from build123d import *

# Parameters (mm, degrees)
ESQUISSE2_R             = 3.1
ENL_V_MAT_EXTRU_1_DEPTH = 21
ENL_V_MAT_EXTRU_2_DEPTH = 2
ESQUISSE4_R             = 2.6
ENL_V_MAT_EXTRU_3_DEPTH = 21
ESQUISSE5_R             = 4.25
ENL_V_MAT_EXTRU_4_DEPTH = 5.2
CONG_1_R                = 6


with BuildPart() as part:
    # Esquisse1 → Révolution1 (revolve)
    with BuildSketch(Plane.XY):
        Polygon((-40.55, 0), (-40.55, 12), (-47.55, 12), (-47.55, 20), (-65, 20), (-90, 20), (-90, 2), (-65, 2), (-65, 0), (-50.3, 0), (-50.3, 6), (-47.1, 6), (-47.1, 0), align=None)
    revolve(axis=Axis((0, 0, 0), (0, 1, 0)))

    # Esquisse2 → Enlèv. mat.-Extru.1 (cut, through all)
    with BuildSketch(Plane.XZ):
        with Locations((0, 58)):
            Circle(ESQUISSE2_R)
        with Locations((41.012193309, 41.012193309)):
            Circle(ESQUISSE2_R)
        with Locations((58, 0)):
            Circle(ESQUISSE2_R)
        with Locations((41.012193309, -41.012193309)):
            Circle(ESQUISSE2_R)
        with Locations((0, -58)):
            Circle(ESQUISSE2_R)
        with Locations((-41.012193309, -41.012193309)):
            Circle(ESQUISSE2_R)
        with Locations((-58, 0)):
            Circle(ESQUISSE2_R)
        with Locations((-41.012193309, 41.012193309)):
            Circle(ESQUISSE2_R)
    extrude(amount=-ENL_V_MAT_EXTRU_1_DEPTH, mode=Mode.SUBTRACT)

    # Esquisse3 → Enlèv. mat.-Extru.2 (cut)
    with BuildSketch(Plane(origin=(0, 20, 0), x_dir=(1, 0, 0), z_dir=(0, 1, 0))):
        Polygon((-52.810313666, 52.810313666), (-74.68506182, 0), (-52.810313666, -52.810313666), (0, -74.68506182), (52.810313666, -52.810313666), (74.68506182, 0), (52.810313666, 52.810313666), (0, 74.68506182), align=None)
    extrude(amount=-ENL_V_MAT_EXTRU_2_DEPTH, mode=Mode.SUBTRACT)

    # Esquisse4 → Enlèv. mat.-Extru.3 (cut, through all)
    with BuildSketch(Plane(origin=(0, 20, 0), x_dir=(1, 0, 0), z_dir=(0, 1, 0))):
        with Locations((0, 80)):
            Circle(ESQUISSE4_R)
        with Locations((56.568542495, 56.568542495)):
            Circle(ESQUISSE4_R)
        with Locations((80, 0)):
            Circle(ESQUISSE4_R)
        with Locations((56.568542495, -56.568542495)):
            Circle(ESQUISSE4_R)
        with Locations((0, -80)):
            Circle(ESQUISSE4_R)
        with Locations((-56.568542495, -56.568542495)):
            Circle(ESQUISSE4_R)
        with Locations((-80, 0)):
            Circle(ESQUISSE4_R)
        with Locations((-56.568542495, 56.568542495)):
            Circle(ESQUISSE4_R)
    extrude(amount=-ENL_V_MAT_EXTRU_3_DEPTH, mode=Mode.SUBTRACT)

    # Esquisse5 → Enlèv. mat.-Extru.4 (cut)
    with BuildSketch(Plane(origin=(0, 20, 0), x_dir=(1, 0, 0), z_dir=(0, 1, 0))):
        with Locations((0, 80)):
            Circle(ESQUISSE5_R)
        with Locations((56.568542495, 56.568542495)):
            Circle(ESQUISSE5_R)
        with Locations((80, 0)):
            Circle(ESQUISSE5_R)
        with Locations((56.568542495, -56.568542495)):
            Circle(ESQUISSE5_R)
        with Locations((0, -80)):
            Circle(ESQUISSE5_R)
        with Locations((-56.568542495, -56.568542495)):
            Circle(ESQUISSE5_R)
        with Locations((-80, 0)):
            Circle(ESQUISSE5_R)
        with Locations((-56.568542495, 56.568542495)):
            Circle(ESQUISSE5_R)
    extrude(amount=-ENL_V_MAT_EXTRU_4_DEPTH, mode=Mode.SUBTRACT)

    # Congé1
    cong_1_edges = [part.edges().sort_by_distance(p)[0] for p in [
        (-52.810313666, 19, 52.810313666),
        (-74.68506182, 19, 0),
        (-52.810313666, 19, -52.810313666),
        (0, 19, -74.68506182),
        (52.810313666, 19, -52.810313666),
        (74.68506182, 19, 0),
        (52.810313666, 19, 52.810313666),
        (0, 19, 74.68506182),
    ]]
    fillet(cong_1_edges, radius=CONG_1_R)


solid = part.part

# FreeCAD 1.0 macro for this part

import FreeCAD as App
import Part
import Sketcher
Q = App.Units.Quantity


def edges_at(feature, points):
    """Names of the edges that pass closest to the given points."""
    edges = feature.Shape.Edges
    near = lambda p: min(range(len(edges)), key=lambda i: edges[i].distToShape(Part.Vertex(*p))[0])
    return sorted({f"Edge{near(p) + 1}" for p in points})


def add_polygon(sketch, points):
    """Adds a closed chain of lines whose ends are joined by coincident constraints."""
    first, n = sketch.GeometryCount, len(points)
    for a, b in zip(points, points[1:] + points[:1]):
        sketch.addGeometry(Part.LineSegment(App.Vector(*a, 0), App.Vector(*b, 0)), False)
    for i in range(n):
        sketch.addConstraint(Sketcher.Constraint("Coincident", first + i, 2, first + (i + 1) % n, 1))

doc = App.newDocument("Part")
body = doc.addObject("PartDesign::Body", "Body")

sketch1 = doc.addObject("Sketcher::SketchObject", "Sketch")
body.addObject(sketch1)
sketch1.AttachmentSupport = (doc.XY_Plane, [""])
sketch1.MapMode = "FlatFace"
add_polygon(sketch1, [(-40.5, 0), (-40.5, 12), (-47.5, 12), (-47.5, 20), (-90, 20), (-90, 2), (-65, 2), (-65, 0), (-50.3, 0), (-50.3, 6), (-47.1, 6), (-47.1, 0)])
sketch1.addConstraint([
    Sketcher.Constraint("Vertical", 0),
    Sketcher.Constraint("Horizontal", 1),
    Sketcher.Constraint("Vertical", 2),
    Sketcher.Constraint("Horizontal", 3),
    Sketcher.Constraint("Vertical", 4),
    Sketcher.Constraint("Horizontal", 5),
    Sketcher.Constraint("Vertical", 6),
    Sketcher.Constraint("Horizontal", 7),
    Sketcher.Constraint("Vertical", 8),
    Sketcher.Constraint("Horizontal", 9),
    Sketcher.Constraint("Vertical", 10),
    Sketcher.Constraint("Horizontal", 11),
    Sketcher.Constraint("PointOnObject", 6, 2, -1),
    Sketcher.Constraint("PointOnObject", 10, 2, -1),
    Sketcher.Constraint("DistanceX", 1, 2, 1, 1, Q("7 mm")),
    Sketcher.Constraint("DistanceX", 5, 1, 5, 2, Q("25 mm")),
    Sketcher.Constraint("DistanceY", 0, 1, 0, 2, Q("12 mm")),
    Sketcher.Constraint("DistanceY", 2, 1, 2, 2, Q("8 mm")),
    Sketcher.Constraint("DistanceY", 4, 2, 4, 1, Q("18 mm")),
    Sketcher.Constraint("DistanceY", 8, 1, 8, 2, Q("6 mm")),
    Sketcher.Constraint("DistanceX", 7, 1, 7, 2, Q("14.7 mm")),
    Sketcher.Constraint("DistanceX", 9, 1, 9, 2, Q("3.2 mm")),
    Sketcher.Constraint("DistanceX", 3, 2, -1, 1, Q("90 mm")),
    Sketcher.Constraint("DistanceX", 3, 2, 3, 1, Q("42.45 mm")),
])
revolution = doc.addObject("PartDesign::Revolution", "Revolution")
body.addObject(revolution)
revolution.Profile = sketch1
revolution.ReferenceAxis = (sketch1, ["V_Axis"])
revolution.Angle = 360

sketch2 = doc.addObject("Sketcher::SketchObject", "Sketch001")
body.addObject(sketch2)
sketch2.AttachmentSupport = (doc.XZ_Plane, [""])
sketch2.MapMode = "FlatFace"
sketch2.addGeometry([
    Part.Circle(App.Vector(0, 58, 0), App.Vector(0, 0, 1), 3.1),
    Part.Circle(App.Vector(41, 41, 0), App.Vector(0, 0, 1), 3.1),
    Part.Circle(App.Vector(58, 0, 0), App.Vector(0, 0, 1), 3.1),
    Part.Circle(App.Vector(41, -41, 0), App.Vector(0, 0, 1), 3.1),
    Part.Circle(App.Vector(0, -58, 0), App.Vector(0, 0, 1), 3.1),
    Part.Circle(App.Vector(-41, -41, 0), App.Vector(0, 0, 1), 3.1),
    Part.Circle(App.Vector(-58, 0, 0), App.Vector(0, 0, 1), 3.1),
    Part.Circle(App.Vector(-41, 41, 0), App.Vector(0, 0, 1), 3.1),
], False)
sketch2.addConstraint([
    Sketcher.Constraint("Equal", 0, 1),
    Sketcher.Constraint("Equal", 1, 2),
    Sketcher.Constraint("Equal", 2, 3),
    Sketcher.Constraint("Equal", 3, 4),
    Sketcher.Constraint("Equal", 4, 5),
    Sketcher.Constraint("Equal", 5, 6),
    Sketcher.Constraint("Equal", 6, 7),
    Sketcher.Constraint("Symmetric", 0, 3, 4, 3, -1, 1),
    Sketcher.Constraint("Symmetric", 1, 3, 5, 3, -1, 1),
    Sketcher.Constraint("Symmetric", 2, 3, 6, 3, -1, 1),
    Sketcher.Constraint("Symmetric", 3, 3, 7, 3, -1, 1),
    Sketcher.Constraint("Symmetric", 3, 3, 5, 3, -2),
    Sketcher.Constraint("PointOnObject", 0, 3, -2),
    Sketcher.Constraint("PointOnObject", 2, 3, -1),
    Sketcher.Constraint("Diameter", 0, Q("6.2 mm")),
    Sketcher.Constraint("DistanceY", -1, 1, 0, 3, Q("58 mm")),
    Sketcher.Constraint("DistanceX", -1, 1, 2, 3, Q("58 mm")),
    Sketcher.Constraint("DistanceX", -1, 1, 1, 3, Q("41.012193 mm")),
    Sketcher.Constraint("DistanceY", -1, 1, 1, 3, Q("41.012193 mm")),
])
pocket1 = doc.addObject("PartDesign::Pocket", "Pocket")
body.addObject(pocket1)
pocket1.Profile = sketch2
pocket1.Type = "ThroughAll"

sketch3 = doc.addObject("Sketcher::SketchObject", "Sketch002")
body.addObject(sketch3)
sketch3.AttachmentSupport = (doc.XZ_Plane, [""])
sketch3.MapMode = "FlatFace"
sketch3.AttachmentOffset = App.Placement(App.Vector(0, 0, -20), App.Rotation())
add_polygon(sketch3, [(-53, -53), (-75, 0), (-53, 53), (0, 75), (53, 53), (75, 0), (53, -53), (0, -75)])
sketch3.addConstraint([
    Sketcher.Constraint("Symmetric", 0, 2, 4, 2, -1, 1),
    Sketcher.Constraint("Symmetric", 1, 2, 5, 2, -1, 1),
    Sketcher.Constraint("Symmetric", 2, 2, 6, 2, -1, 1),
    Sketcher.Constraint("Symmetric", 3, 2, 7, 2, -1, 1),
    Sketcher.Constraint("Symmetric", 1, 2, 3, 2, -2),
    Sketcher.Constraint("PointOnObject", 0, 2, -1),
    Sketcher.Constraint("PointOnObject", 2, 2, -2),
    Sketcher.Constraint("Perpendicular", 0, 2),
    Sketcher.Constraint("Equal", 1, 2),
    Sketcher.Constraint("Angle", 0, Q("112.5 deg")),
    Sketcher.Constraint("Distance", 0, Q("57.161472 mm")),
])
pocket2 = doc.addObject("PartDesign::Pocket", "Pocket001")
body.addObject(pocket2)
pocket2.Profile = sketch3
pocket2.Length = 2
pocket2.Reversed = True

sketch4 = doc.addObject("Sketcher::SketchObject", "Sketch003")
body.addObject(sketch4)
sketch4.AttachmentSupport = (doc.XZ_Plane, [""])
sketch4.MapMode = "FlatFace"
sketch4.AttachmentOffset = App.Placement(App.Vector(0, 0, -20), App.Rotation())
sketch4.addGeometry([
    Part.Circle(App.Vector(0, -80, 0), App.Vector(0, 0, 1), 2.6),
    Part.Circle(App.Vector(56.6, -56.6, 0), App.Vector(0, 0, 1), 2.6),
    Part.Circle(App.Vector(80, 0, 0), App.Vector(0, 0, 1), 2.6),
    Part.Circle(App.Vector(56.6, 56.6, 0), App.Vector(0, 0, 1), 2.6),
    Part.Circle(App.Vector(0, 80, 0), App.Vector(0, 0, 1), 2.6),
    Part.Circle(App.Vector(-56.6, 56.6, 0), App.Vector(0, 0, 1), 2.6),
    Part.Circle(App.Vector(-80, 0, 0), App.Vector(0, 0, 1), 2.6),
    Part.Circle(App.Vector(-56.6, -56.6, 0), App.Vector(0, 0, 1), 2.6),
], False)
sketch4.addConstraint([
    Sketcher.Constraint("Equal", 0, 1),
    Sketcher.Constraint("Equal", 1, 2),
    Sketcher.Constraint("Equal", 2, 3),
    Sketcher.Constraint("Equal", 3, 4),
    Sketcher.Constraint("Equal", 4, 5),
    Sketcher.Constraint("Equal", 5, 6),
    Sketcher.Constraint("Equal", 6, 7),
    Sketcher.Constraint("Symmetric", 0, 3, 4, 3, -1, 1),
    Sketcher.Constraint("Symmetric", 1, 3, 5, 3, -1, 1),
    Sketcher.Constraint("Symmetric", 2, 3, 6, 3, -1, 1),
    Sketcher.Constraint("Symmetric", 3, 3, 7, 3, -1, 1),
    Sketcher.Constraint("Symmetric", 3, 3, 5, 3, -2),
    Sketcher.Constraint("PointOnObject", 0, 3, -2),
    Sketcher.Constraint("PointOnObject", 2, 3, -1),
    Sketcher.Constraint("Diameter", 0, Q("5.2 mm")),
    Sketcher.Constraint("DistanceY", 0, 3, -1, 1, Q("80 mm")),
    Sketcher.Constraint("DistanceX", -1, 1, 2, 3, Q("80 mm")),
    Sketcher.Constraint("DistanceX", -1, 1, 1, 3, Q("56.568542 mm")),
    Sketcher.Constraint("DistanceY", 1, 3, -1, 1, Q("56.568542 mm")),
])
pocket3 = doc.addObject("PartDesign::Pocket", "Pocket002")
body.addObject(pocket3)
pocket3.Profile = sketch4
pocket3.Type = "ThroughAll"
pocket3.Reversed = True

sketch5 = doc.addObject("Sketcher::SketchObject", "Sketch004")
body.addObject(sketch5)
sketch5.AttachmentSupport = (doc.XZ_Plane, [""])
sketch5.MapMode = "FlatFace"
sketch5.AttachmentOffset = App.Placement(App.Vector(0, 0, -20), App.Rotation())
sketch5.addGeometry([
    Part.Circle(App.Vector(0, -80, 0), App.Vector(0, 0, 1), 4.2),
    Part.Circle(App.Vector(56.6, -56.6, 0), App.Vector(0, 0, 1), 4.2),
    Part.Circle(App.Vector(80, 0, 0), App.Vector(0, 0, 1), 4.2),
    Part.Circle(App.Vector(56.6, 56.6, 0), App.Vector(0, 0, 1), 4.2),
    Part.Circle(App.Vector(0, 80, 0), App.Vector(0, 0, 1), 4.2),
    Part.Circle(App.Vector(-56.6, 56.6, 0), App.Vector(0, 0, 1), 4.2),
    Part.Circle(App.Vector(-80, 0, 0), App.Vector(0, 0, 1), 4.2),
    Part.Circle(App.Vector(-56.6, -56.6, 0), App.Vector(0, 0, 1), 4.2),
], False)
sketch5.addConstraint([
    Sketcher.Constraint("Equal", 0, 1),
    Sketcher.Constraint("Equal", 1, 2),
    Sketcher.Constraint("Equal", 2, 3),
    Sketcher.Constraint("Equal", 3, 4),
    Sketcher.Constraint("Equal", 4, 5),
    Sketcher.Constraint("Equal", 5, 6),
    Sketcher.Constraint("Equal", 6, 7),
    Sketcher.Constraint("Symmetric", 0, 3, 4, 3, -1, 1),
    Sketcher.Constraint("Symmetric", 1, 3, 5, 3, -1, 1),
    Sketcher.Constraint("Symmetric", 2, 3, 6, 3, -1, 1),
    Sketcher.Constraint("Symmetric", 3, 3, 7, 3, -1, 1),
    Sketcher.Constraint("Symmetric", 3, 3, 5, 3, -2),
    Sketcher.Constraint("PointOnObject", 0, 3, -2),
    Sketcher.Constraint("PointOnObject", 2, 3, -1),
    Sketcher.Constraint("Diameter", 0, Q("8.5 mm")),
    Sketcher.Constraint("DistanceY", 0, 3, -1, 1, Q("80 mm")),
    Sketcher.Constraint("DistanceX", -1, 1, 2, 3, Q("80 mm")),
    Sketcher.Constraint("DistanceX", -1, 1, 1, 3, Q("56.568542 mm")),
    Sketcher.Constraint("DistanceY", 1, 3, -1, 1, Q("56.568542 mm")),
])
pocket4 = doc.addObject("PartDesign::Pocket", "Pocket003")
body.addObject(pocket4)
pocket4.Profile = sketch5
pocket4.Length = 5.2
pocket4.Reversed = True
doc.recompute()

fillet = doc.addObject("PartDesign::Fillet", "Fillet")
body.addObject(fillet)
fillet.Base = (pocket4, edges_at(pocket4, [
    (-52.81, 19, 52.81),
    (-74.685, 19, 0),
    (-52.81, 19, -52.81),
    (0, 19, -74.685),
    (52.81, 19, -52.81),
    (74.685, 19, 0),
    (52.81, 19, 52.81),
    (0, 19, 74.685),
]))
fillet.Radius = 6

doc.recompute()
